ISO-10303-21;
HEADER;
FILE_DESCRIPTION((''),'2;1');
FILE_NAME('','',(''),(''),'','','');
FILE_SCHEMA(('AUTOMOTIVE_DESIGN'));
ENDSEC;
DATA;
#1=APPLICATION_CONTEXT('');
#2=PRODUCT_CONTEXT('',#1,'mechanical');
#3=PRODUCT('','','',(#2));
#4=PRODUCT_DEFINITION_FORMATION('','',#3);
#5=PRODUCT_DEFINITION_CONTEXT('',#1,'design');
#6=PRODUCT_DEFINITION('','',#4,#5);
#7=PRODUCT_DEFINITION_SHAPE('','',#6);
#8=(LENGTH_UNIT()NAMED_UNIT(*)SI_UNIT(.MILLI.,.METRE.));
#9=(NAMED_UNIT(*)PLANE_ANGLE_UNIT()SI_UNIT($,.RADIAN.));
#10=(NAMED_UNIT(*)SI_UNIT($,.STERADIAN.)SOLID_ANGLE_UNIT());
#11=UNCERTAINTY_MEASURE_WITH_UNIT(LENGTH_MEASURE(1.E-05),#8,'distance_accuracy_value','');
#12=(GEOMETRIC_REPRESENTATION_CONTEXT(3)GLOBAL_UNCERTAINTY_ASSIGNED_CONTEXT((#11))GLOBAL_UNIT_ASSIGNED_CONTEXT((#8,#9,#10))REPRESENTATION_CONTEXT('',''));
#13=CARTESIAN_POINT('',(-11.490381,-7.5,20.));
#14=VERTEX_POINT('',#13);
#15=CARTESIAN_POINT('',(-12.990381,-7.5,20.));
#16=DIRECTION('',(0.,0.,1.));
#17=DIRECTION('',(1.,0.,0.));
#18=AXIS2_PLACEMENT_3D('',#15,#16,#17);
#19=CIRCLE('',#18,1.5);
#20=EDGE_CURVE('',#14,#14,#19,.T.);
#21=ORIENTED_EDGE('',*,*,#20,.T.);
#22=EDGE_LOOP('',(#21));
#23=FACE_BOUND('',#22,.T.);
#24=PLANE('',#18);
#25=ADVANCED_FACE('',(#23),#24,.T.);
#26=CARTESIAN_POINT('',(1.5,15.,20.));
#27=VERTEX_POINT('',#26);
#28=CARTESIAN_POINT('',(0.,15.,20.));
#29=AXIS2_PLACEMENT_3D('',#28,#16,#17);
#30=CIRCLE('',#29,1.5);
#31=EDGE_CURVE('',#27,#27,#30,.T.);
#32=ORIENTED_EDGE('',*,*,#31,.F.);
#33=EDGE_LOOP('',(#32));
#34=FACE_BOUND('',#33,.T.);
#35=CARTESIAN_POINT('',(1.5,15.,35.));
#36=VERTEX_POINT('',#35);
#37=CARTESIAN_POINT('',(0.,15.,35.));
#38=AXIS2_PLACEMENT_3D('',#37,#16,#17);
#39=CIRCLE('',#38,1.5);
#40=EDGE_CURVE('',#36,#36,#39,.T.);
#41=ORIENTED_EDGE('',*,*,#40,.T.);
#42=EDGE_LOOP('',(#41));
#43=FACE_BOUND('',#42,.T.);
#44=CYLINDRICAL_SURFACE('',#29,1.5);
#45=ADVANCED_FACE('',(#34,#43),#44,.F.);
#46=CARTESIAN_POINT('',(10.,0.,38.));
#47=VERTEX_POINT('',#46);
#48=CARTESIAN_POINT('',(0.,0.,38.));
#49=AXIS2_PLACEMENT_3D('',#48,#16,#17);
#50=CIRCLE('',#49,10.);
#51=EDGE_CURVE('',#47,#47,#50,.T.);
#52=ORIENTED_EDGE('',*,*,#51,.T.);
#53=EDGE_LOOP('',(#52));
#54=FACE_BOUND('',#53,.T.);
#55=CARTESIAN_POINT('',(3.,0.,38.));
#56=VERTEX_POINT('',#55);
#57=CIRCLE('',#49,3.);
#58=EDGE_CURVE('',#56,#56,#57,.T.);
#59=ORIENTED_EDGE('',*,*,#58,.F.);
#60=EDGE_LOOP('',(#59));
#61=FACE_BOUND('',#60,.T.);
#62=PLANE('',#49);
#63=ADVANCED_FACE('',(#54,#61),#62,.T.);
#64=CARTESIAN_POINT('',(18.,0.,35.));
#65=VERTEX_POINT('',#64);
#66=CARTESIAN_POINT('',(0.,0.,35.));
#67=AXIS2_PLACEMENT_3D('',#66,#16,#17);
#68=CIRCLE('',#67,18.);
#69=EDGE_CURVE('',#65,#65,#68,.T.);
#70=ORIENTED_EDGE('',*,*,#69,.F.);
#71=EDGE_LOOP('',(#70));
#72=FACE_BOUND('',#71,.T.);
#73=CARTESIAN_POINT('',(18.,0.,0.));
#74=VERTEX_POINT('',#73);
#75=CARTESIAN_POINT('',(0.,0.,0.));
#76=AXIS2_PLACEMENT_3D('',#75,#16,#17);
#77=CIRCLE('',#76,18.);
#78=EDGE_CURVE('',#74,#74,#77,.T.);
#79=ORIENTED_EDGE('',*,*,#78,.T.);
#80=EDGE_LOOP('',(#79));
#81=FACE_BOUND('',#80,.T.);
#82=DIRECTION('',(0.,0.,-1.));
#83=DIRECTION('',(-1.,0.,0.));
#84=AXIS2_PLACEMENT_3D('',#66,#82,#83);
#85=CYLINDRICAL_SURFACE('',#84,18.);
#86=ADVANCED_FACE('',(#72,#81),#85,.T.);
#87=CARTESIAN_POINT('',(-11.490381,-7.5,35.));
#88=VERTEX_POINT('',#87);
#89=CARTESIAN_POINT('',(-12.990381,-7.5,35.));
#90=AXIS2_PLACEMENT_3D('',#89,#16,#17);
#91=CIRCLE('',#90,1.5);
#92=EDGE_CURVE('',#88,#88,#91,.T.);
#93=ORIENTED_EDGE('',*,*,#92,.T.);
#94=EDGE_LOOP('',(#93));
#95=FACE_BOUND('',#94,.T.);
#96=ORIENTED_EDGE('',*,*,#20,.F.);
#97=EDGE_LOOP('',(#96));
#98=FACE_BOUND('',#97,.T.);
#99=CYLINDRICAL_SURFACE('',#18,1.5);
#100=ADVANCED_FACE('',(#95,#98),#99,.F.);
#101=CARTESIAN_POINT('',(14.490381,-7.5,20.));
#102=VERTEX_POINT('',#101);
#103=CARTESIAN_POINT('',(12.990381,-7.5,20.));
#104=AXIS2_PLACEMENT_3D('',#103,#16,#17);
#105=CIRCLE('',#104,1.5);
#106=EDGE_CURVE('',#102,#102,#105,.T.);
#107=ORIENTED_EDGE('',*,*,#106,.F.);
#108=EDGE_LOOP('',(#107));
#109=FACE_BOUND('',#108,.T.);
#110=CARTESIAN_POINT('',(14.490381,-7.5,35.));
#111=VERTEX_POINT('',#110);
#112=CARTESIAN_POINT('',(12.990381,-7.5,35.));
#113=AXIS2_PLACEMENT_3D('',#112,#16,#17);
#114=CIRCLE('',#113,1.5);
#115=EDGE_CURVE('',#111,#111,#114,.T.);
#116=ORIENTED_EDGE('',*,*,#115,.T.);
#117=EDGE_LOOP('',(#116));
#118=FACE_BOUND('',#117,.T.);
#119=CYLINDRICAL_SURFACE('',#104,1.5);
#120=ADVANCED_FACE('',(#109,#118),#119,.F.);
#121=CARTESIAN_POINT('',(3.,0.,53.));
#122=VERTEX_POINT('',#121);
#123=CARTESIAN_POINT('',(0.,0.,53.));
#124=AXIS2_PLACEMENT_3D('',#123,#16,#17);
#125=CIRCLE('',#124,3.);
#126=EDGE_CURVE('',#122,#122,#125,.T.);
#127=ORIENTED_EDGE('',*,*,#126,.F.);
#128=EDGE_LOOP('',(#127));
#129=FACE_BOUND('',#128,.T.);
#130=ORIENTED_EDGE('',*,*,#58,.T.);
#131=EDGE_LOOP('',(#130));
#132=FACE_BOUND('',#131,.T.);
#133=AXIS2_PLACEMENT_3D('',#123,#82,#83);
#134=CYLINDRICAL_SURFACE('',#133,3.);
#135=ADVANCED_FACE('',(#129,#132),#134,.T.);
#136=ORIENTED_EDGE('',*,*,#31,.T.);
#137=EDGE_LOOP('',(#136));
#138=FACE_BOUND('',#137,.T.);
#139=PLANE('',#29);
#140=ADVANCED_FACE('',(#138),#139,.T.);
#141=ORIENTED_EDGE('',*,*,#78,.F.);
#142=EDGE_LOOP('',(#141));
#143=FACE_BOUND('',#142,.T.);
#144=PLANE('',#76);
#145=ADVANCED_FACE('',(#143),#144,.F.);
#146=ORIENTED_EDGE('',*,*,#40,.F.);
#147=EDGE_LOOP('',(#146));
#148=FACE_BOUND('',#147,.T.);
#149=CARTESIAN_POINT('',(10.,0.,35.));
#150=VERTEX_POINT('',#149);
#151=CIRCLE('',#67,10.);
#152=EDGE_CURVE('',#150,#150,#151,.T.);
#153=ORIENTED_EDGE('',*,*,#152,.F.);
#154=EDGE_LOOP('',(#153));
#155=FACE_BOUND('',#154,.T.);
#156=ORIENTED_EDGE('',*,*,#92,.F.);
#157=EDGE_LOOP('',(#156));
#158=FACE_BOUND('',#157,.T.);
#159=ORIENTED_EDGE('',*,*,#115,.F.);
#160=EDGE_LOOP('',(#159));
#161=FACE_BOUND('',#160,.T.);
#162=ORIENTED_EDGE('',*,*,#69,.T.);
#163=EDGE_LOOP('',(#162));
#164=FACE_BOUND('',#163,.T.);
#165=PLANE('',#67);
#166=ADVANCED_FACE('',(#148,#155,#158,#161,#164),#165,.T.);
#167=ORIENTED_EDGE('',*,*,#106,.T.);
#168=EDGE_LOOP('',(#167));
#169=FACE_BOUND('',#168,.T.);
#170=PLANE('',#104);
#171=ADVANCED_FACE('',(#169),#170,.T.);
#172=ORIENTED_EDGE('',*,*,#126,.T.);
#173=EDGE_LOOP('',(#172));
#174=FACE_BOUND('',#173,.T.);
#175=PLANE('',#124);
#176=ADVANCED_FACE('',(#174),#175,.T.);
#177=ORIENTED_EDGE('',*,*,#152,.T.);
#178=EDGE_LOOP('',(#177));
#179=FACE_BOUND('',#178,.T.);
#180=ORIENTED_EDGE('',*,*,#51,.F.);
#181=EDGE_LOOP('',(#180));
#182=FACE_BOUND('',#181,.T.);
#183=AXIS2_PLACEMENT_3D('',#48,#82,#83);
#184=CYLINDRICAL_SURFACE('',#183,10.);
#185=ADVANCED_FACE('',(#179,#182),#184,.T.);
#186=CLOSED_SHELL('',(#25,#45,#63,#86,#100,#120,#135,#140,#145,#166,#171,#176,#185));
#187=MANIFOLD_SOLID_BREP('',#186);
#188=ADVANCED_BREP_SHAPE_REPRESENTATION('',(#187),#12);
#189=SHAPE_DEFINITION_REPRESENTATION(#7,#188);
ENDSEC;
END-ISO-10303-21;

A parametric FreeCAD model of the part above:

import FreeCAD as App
import Part
import Sketcher

doc = App.newDocument("Part")
body = doc.addObject("PartDesign::Body", "Body")

# Sketch on XY plane
sketch1 = body.newObject("Sketcher::SketchObject", "Sketch")
sketch1.AttachmentSupport = (doc.getObject("XY_Plane"), [""])
sketch1.MapMode = "FlatFace"
sketch1.addGeometry(Part.Circle(App.Vector(0, 0, 0), App.Vector(0, 0, 1), 18), False)
sketch1.addConstraint([
    Sketcher.Constraint("Coincident", 0, 3, -1, 1),
    Sketcher.Constraint("Diameter", 0, 36.0),
])
pad1 = body.newObject("PartDesign::Pad", "Pad")
pad1.Profile = sketch1
pad1.Length = 35

# Sketch on XY plane
sketch2 = body.newObject("Sketcher::SketchObject", "Sketch001")
sketch2.AttachmentSupport = (doc.getObject("XY_Plane"), [""])
sketch2.MapMode = "FlatFace"
sketch2.AttachmentOffset = App.Placement(App.Vector(0, 0, 35), App.Rotation())
sketch2.addGeometry(Part.Circle(App.Vector(0, 0, 0), App.Vector(0, 0, 1), 10), False)
sketch2.addConstraint([
    Sketcher.Constraint("Coincident", 0, 3, -1, 1),
    Sketcher.Constraint("Diameter", 0, 20.0),
])
pad2 = body.newObject("PartDesign::Pad", "Pad001")
pad2.Profile = sketch2
pad2.Length = 3

# Sketch on XY plane
sketch3 = body.newObject("Sketcher::SketchObject", "Sketch002")
sketch3.AttachmentSupport = (doc.getObject("XY_Plane"), [""])
sketch3.MapMode = "FlatFace"
sketch3.AttachmentOffset = App.Placement(App.Vector(0, 0, 38), App.Rotation())
sketch3.addGeometry(Part.Circle(App.Vector(0, 0, 0), App.Vector(0, 0, 1), 3), False)
sketch3.addConstraint([
    Sketcher.Constraint("Coincident", 0, 3, -1, 1),
    Sketcher.Constraint("Diameter", 0, 6.0),
])
pad3 = body.newObject("PartDesign::Pad", "Pad002")
pad3.Profile = sketch3
pad3.Length = 15

# Sketch on XY plane
sketch4 = body.newObject("Sketcher::SketchObject", "Sketch003")
sketch4.AttachmentSupport = (doc.getObject("XY_Plane"), [""])
sketch4.MapMode = "FlatFace"
sketch4.AttachmentOffset = App.Placement(App.Vector(0, 0, 35), App.Rotation())
sketch4.addGeometry([
    Part.Circle(App.Vector(0, 15, 0), App.Vector(0, 0, 1), 1.5),
    Part.Circle(App.Vector(13, -7.5, 0), App.Vector(0, 0, 1), 1.5),
    Part.Circle(App.Vector(-13, -7.5, 0), App.Vector(0, 0, 1), 1.5),
], False)
sketch4.addConstraint([
    Sketcher.Constraint("Equal", 0, 1),
    Sketcher.Constraint("Equal", 1, 2),
    Sketcher.Constraint("Symmetric", 1, 3, 2, 3, -2),
    Sketcher.Constraint("PointOnObject", 0, 3, -2),
    Sketcher.Constraint("Diameter", 0, 3.0),
    Sketcher.Constraint("DistanceY", -1, 1, 0, 3, 15.0),
    Sketcher.Constraint("DistanceY", 1, 3, -1, 1, 7.5),
    Sketcher.Constraint("DistanceX", -1, 1, 1, 3, 12.990381),
])
pocket1 = body.newObject("PartDesign::Pocket", "Pocket")
pocket1.Profile = sketch4
pocket1.Length = 15

doc.recompute()
